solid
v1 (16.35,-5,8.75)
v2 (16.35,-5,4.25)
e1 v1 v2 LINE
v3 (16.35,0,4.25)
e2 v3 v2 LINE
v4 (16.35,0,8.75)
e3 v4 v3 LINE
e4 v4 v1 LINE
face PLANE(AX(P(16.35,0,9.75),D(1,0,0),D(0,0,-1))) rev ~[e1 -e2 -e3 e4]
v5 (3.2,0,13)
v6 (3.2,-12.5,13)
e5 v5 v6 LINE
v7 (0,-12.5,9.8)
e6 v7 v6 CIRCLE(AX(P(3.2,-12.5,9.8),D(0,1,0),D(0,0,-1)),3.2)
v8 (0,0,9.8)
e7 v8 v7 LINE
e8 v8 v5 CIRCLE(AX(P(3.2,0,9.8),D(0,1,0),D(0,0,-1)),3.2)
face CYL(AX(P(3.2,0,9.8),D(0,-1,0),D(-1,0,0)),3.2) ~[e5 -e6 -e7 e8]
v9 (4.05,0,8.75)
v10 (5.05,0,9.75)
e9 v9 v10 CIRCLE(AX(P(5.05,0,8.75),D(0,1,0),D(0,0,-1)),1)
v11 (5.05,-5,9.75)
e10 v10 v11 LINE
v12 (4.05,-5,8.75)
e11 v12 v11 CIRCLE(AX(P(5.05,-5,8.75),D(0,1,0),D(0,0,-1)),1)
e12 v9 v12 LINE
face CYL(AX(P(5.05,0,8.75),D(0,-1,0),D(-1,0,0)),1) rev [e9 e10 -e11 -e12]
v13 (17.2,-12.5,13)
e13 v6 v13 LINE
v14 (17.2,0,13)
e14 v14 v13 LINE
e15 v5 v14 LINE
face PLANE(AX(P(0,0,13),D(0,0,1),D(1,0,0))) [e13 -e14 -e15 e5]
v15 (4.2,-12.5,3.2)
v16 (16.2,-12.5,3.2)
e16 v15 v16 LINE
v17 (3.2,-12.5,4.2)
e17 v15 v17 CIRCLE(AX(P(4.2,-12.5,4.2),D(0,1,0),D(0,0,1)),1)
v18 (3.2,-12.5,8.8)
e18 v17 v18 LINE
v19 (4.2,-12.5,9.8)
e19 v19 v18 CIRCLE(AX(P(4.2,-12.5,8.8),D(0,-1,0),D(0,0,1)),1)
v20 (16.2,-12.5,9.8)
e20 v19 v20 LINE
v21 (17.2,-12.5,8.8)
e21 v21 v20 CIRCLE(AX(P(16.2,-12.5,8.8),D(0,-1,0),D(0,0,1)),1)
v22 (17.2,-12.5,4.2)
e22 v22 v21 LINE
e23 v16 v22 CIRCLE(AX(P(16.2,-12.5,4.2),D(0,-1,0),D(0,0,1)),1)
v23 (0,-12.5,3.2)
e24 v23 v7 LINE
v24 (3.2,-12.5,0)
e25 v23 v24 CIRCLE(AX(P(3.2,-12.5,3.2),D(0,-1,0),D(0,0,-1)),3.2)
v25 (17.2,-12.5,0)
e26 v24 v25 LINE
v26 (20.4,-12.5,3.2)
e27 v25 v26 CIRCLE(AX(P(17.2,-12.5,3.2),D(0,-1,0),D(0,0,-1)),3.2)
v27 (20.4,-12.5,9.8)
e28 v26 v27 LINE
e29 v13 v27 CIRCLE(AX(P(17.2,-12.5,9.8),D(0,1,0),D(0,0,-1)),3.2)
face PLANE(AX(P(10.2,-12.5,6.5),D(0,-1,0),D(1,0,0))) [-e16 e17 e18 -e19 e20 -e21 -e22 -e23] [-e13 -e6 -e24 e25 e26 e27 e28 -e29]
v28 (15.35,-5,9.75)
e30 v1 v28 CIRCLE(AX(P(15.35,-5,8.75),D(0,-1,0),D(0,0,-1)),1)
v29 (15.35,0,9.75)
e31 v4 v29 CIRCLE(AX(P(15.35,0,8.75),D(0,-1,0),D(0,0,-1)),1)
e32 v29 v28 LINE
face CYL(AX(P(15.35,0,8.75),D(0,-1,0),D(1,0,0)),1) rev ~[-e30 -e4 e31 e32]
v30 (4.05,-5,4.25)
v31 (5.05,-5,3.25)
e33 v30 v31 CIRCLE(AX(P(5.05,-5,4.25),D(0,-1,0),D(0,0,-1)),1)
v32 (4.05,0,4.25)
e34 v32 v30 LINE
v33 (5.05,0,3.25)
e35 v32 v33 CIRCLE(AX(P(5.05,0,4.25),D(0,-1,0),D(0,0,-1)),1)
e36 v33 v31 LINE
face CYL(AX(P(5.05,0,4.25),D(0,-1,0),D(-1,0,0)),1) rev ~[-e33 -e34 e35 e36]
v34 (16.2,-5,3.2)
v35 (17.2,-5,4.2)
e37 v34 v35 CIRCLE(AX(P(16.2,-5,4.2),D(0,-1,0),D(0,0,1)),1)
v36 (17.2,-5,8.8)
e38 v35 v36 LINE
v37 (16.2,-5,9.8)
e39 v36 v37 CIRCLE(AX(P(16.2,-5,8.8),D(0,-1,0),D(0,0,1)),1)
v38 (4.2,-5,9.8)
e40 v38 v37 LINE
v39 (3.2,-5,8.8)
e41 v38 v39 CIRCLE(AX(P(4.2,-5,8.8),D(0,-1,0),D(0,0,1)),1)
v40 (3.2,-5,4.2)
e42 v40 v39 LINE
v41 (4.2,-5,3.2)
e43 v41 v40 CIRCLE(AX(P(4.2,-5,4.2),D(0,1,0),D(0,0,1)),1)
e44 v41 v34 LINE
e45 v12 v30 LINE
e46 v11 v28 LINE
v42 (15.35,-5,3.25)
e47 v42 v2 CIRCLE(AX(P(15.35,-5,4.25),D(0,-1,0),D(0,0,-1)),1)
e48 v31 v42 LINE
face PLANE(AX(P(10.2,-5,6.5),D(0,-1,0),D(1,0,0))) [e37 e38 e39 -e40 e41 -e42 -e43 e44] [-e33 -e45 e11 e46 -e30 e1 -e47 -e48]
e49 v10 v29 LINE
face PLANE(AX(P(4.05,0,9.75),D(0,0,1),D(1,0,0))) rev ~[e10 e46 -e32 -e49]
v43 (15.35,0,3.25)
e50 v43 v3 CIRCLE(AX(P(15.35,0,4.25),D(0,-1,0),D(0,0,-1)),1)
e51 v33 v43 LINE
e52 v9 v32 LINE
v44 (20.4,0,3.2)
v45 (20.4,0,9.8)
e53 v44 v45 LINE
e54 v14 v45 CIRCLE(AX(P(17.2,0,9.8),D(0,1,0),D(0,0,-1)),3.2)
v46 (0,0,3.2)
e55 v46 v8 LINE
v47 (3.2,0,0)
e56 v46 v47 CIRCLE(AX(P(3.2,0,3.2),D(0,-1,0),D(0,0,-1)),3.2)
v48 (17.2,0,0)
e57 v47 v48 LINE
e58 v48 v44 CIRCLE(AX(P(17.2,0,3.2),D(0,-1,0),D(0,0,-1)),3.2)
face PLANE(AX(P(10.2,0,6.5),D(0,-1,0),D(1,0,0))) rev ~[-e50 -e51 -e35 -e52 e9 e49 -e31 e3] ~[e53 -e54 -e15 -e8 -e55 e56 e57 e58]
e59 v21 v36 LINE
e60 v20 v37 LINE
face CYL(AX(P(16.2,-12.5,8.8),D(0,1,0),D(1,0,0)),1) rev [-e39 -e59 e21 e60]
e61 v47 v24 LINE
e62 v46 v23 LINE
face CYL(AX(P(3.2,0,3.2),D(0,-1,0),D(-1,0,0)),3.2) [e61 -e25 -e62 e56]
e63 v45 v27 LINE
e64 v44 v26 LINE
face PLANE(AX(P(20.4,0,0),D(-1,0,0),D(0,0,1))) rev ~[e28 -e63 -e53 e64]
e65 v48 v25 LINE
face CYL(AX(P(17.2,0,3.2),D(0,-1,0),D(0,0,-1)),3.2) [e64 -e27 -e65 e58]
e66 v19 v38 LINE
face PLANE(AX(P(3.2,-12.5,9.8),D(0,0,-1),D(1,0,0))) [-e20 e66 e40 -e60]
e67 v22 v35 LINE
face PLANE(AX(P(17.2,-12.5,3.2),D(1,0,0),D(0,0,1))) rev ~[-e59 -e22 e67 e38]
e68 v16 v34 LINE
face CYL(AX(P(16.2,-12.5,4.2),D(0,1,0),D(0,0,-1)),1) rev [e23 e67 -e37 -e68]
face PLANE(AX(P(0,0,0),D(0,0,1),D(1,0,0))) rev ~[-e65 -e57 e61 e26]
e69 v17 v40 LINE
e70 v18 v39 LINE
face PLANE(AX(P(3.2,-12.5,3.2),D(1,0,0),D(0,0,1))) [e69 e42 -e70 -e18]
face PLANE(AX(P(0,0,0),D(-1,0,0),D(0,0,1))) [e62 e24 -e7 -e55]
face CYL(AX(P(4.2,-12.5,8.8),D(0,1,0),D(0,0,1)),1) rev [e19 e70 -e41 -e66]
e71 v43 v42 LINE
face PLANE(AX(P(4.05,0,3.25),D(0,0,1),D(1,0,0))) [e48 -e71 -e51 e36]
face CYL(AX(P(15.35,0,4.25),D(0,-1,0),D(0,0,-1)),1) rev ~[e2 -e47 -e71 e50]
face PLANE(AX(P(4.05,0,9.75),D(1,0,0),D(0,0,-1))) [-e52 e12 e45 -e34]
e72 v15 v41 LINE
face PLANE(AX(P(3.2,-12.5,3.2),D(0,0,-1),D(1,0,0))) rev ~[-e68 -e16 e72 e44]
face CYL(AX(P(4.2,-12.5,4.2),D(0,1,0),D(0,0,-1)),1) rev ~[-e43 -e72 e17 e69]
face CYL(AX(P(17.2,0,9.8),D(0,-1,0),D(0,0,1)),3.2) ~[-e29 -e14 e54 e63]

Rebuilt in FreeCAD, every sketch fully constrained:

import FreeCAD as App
import Part
import Sketcher
Q = App.Units.Quantity


def edges_at(feature, points):
    """Names of the edges that pass closest to the given points."""
    edges = feature.Shape.Edges
    near = lambda p: min(range(len(edges)), key=lambda i: edges[i].distToShape(Part.Vertex(*p))[0])
    return sorted({f"Edge{near(p) + 1}" for p in points})

doc = App.newDocument("Part")
body = doc.addObject("PartDesign::Body", "Body")

# Sketch on XZ plane
sketch1 = body.newObject("Sketcher::SketchObject", "Sketch")
sketch1.AttachmentSupport = (doc.getObject("XZ_Plane"), [""])
sketch1.MapMode = "FlatFace"
sketch1.addGeometry(Part.LineSegment(App.Vector(0, 13, 0), App.Vector(0, 0, 0)), False)
sketch1.addGeometry(Part.LineSegment(App.Vector(0, 0, 0), App.Vector(20, 0, 0)), False)
sketch1.addGeometry(Part.LineSegment(App.Vector(20, 0, 0), App.Vector(20, 13, 0)), False)
sketch1.addGeometry(Part.LineSegment(App.Vector(20, 13, 0), App.Vector(0, 13, 0)), False)
sketch1.addConstraint(Sketcher.Constraint("Coincident", 0, 2, 1, 1))
sketch1.addConstraint(Sketcher.Constraint("Coincident", 1, 2, 2, 1))
sketch1.addConstraint(Sketcher.Constraint("Coincident", 2, 2, 3, 1))
sketch1.addConstraint(Sketcher.Constraint("Coincident", 3, 2, 0, 1))
sketch1.addConstraint(Sketcher.Constraint("Vertical", 0))
sketch1.addConstraint(Sketcher.Constraint("Horizontal", 1))
sketch1.addConstraint(Sketcher.Constraint("Vertical", 2))
sketch1.addConstraint(Sketcher.Constraint("Horizontal", 3))
sketch1.addConstraint(Sketcher.Constraint("Coincident", 0, 2, -1, 1))
sketch1.addConstraint(Sketcher.Constraint("DistanceY", 0, 2, 0, 1, Q("13 mm")))
sketch1.addConstraint(Sketcher.Constraint("DistanceX", 1, 1, 1, 2, Q("20.4 mm")))
pad1 = body.newObject("PartDesign::Pad", "Pad")
pad1.Profile = sketch1
pad1.Length = 12.5

# Sketch on XZ plane
sketch2 = body.newObject("Sketcher::SketchObject", "Sketch001")
sketch2.AttachmentSupport = (doc.getObject("XZ_Plane"), [""])
sketch2.MapMode = "FlatFace"
sketch2.AttachmentOffset = App.Placement(App.Vector(0, 0, 12.5), App.Rotation())
sketch2.addGeometry(Part.LineSegment(App.Vector(3, 10, 0), App.Vector(3, 3, 0)), False)
sketch2.addGeometry(Part.LineSegment(App.Vector(3, 3, 0), App.Vector(17, 3, 0)), False)
sketch2.addGeometry(Part.LineSegment(App.Vector(17, 3, 0), App.Vector(17, 10, 0)), False)
sketch2.addGeometry(Part.LineSegment(App.Vector(17, 10, 0), App.Vector(3, 10, 0)), False)
sketch2.addConstraint(Sketcher.Constraint("Coincident", 0, 2, 1, 1))
sketch2.addConstraint(Sketcher.Constraint("Coincident", 1, 2, 2, 1))
sketch2.addConstraint(Sketcher.Constraint("Coincident", 2, 2, 3, 1))
sketch2.addConstraint(Sketcher.Constraint("Coincident", 3, 2, 0, 1))
sketch2.addConstraint(Sketcher.Constraint("Vertical", 0))
sketch2.addConstraint(Sketcher.Constraint("Horizontal", 1))
sketch2.addConstraint(Sketcher.Constraint("Vertical", 2))
sketch2.addConstraint(Sketcher.Constraint("Horizontal", 3))
sketch2.addConstraint(Sketcher.Constraint("DistanceX", 1, 1, 1, 2, Q("14 mm")))
sketch2.addConstraint(Sketcher.Constraint("DistanceY", 0, 2, 0, 1, Q("6.6 mm")))
sketch2.addConstraint(Sketcher.Constraint("DistanceX", -1, 1, 0, 2, Q("3.2 mm")))
sketch2.addConstraint(Sketcher.Constraint("DistanceY", -1, 1, 0, 2, Q("3.2 mm")))
pocket1 = body.newObject("PartDesign::Pocket", "Pocket")
pocket1.Profile = sketch2
pocket1.Length = 7.5

# Sketch on XZ plane
sketch3 = body.newObject("Sketcher::SketchObject", "Sketch002")
sketch3.AttachmentSupport = (doc.getObject("XZ_Plane"), [""])
sketch3.MapMode = "FlatFace"
sketch3.addGeometry(Part.LineSegment(App.Vector(4, 3, 0), App.Vector(4, 10, 0)), False)
sketch3.addGeometry(Part.LineSegment(App.Vector(4, 10, 0), App.Vector(16, 10, 0)), False)
sketch3.addGeometry(Part.LineSegment(App.Vector(16, 10, 0), App.Vector(16, 3, 0)), False)
sketch3.addGeometry(Part.LineSegment(App.Vector(16, 3, 0), App.Vector(4, 3, 0)), False)
sketch3.addConstraint(Sketcher.Constraint("Coincident", 0, 2, 1, 1))
sketch3.addConstraint(Sketcher.Constraint("Coincident", 1, 2, 2, 1))
sketch3.addConstraint(Sketcher.Constraint("Coincident", 2, 2, 3, 1))
sketch3.addConstraint(Sketcher.Constraint("Coincident", 3, 2, 0, 1))
sketch3.addConstraint(Sketcher.Constraint("Vertical", 0))
sketch3.addConstraint(Sketcher.Constraint("Horizontal", 1))
sketch3.addConstraint(Sketcher.Constraint("Vertical", 2))
sketch3.addConstraint(Sketcher.Constraint("Horizontal", 3))
sketch3.addConstraint(Sketcher.Constraint("DistanceX", 1, 1, 1, 2, Q("12.3 mm")))
sketch3.addConstraint(Sketcher.Constraint("DistanceY", 0, 1, 0, 2, Q("6.5 mm")))
sketch3.addConstraint(Sketcher.Constraint("DistanceX", -1, 1, 0, 2, Q("4.05 mm")))
sketch3.addConstraint(Sketcher.Constraint("DistanceY", -1, 1, 0, 2, Q("9.75 mm")))
pocket2 = body.newObject("PartDesign::Pocket", "Pocket001")
pocket2.Profile = sketch3
pocket2.Length = 5
pocket2.Reversed = True
doc.recompute()

fillet = body.newObject("PartDesign::Fillet", "Fillet")
fillet.Base = (pocket2, edges_at(pocket2, [
    (16.35, -2.5, 9.75),
    (4.05, -2.5, 9.75),
    (4.05, -2.5, 3.25),
    (16.35, -2.5, 3.25),
    (17.2, -8.75, 9.8),
    (17.2, -8.75, 3.2),
    (3.2, -8.75, 3.2),
    (3.2, -8.75, 9.8),
]))
fillet.Radius = 1
doc.recompute()

fillet2 = body.newObject("PartDesign::Fillet", "Fillet001")
fillet2.Base = (fillet, edges_at(fillet, [
    (0, -6.25, 13),
    (0, -6.25, 0),
    (20.4, -6.25, 13),
    (20.4, -6.25, 0),
]))
fillet2.Radius = 3.2

doc.recompute()
